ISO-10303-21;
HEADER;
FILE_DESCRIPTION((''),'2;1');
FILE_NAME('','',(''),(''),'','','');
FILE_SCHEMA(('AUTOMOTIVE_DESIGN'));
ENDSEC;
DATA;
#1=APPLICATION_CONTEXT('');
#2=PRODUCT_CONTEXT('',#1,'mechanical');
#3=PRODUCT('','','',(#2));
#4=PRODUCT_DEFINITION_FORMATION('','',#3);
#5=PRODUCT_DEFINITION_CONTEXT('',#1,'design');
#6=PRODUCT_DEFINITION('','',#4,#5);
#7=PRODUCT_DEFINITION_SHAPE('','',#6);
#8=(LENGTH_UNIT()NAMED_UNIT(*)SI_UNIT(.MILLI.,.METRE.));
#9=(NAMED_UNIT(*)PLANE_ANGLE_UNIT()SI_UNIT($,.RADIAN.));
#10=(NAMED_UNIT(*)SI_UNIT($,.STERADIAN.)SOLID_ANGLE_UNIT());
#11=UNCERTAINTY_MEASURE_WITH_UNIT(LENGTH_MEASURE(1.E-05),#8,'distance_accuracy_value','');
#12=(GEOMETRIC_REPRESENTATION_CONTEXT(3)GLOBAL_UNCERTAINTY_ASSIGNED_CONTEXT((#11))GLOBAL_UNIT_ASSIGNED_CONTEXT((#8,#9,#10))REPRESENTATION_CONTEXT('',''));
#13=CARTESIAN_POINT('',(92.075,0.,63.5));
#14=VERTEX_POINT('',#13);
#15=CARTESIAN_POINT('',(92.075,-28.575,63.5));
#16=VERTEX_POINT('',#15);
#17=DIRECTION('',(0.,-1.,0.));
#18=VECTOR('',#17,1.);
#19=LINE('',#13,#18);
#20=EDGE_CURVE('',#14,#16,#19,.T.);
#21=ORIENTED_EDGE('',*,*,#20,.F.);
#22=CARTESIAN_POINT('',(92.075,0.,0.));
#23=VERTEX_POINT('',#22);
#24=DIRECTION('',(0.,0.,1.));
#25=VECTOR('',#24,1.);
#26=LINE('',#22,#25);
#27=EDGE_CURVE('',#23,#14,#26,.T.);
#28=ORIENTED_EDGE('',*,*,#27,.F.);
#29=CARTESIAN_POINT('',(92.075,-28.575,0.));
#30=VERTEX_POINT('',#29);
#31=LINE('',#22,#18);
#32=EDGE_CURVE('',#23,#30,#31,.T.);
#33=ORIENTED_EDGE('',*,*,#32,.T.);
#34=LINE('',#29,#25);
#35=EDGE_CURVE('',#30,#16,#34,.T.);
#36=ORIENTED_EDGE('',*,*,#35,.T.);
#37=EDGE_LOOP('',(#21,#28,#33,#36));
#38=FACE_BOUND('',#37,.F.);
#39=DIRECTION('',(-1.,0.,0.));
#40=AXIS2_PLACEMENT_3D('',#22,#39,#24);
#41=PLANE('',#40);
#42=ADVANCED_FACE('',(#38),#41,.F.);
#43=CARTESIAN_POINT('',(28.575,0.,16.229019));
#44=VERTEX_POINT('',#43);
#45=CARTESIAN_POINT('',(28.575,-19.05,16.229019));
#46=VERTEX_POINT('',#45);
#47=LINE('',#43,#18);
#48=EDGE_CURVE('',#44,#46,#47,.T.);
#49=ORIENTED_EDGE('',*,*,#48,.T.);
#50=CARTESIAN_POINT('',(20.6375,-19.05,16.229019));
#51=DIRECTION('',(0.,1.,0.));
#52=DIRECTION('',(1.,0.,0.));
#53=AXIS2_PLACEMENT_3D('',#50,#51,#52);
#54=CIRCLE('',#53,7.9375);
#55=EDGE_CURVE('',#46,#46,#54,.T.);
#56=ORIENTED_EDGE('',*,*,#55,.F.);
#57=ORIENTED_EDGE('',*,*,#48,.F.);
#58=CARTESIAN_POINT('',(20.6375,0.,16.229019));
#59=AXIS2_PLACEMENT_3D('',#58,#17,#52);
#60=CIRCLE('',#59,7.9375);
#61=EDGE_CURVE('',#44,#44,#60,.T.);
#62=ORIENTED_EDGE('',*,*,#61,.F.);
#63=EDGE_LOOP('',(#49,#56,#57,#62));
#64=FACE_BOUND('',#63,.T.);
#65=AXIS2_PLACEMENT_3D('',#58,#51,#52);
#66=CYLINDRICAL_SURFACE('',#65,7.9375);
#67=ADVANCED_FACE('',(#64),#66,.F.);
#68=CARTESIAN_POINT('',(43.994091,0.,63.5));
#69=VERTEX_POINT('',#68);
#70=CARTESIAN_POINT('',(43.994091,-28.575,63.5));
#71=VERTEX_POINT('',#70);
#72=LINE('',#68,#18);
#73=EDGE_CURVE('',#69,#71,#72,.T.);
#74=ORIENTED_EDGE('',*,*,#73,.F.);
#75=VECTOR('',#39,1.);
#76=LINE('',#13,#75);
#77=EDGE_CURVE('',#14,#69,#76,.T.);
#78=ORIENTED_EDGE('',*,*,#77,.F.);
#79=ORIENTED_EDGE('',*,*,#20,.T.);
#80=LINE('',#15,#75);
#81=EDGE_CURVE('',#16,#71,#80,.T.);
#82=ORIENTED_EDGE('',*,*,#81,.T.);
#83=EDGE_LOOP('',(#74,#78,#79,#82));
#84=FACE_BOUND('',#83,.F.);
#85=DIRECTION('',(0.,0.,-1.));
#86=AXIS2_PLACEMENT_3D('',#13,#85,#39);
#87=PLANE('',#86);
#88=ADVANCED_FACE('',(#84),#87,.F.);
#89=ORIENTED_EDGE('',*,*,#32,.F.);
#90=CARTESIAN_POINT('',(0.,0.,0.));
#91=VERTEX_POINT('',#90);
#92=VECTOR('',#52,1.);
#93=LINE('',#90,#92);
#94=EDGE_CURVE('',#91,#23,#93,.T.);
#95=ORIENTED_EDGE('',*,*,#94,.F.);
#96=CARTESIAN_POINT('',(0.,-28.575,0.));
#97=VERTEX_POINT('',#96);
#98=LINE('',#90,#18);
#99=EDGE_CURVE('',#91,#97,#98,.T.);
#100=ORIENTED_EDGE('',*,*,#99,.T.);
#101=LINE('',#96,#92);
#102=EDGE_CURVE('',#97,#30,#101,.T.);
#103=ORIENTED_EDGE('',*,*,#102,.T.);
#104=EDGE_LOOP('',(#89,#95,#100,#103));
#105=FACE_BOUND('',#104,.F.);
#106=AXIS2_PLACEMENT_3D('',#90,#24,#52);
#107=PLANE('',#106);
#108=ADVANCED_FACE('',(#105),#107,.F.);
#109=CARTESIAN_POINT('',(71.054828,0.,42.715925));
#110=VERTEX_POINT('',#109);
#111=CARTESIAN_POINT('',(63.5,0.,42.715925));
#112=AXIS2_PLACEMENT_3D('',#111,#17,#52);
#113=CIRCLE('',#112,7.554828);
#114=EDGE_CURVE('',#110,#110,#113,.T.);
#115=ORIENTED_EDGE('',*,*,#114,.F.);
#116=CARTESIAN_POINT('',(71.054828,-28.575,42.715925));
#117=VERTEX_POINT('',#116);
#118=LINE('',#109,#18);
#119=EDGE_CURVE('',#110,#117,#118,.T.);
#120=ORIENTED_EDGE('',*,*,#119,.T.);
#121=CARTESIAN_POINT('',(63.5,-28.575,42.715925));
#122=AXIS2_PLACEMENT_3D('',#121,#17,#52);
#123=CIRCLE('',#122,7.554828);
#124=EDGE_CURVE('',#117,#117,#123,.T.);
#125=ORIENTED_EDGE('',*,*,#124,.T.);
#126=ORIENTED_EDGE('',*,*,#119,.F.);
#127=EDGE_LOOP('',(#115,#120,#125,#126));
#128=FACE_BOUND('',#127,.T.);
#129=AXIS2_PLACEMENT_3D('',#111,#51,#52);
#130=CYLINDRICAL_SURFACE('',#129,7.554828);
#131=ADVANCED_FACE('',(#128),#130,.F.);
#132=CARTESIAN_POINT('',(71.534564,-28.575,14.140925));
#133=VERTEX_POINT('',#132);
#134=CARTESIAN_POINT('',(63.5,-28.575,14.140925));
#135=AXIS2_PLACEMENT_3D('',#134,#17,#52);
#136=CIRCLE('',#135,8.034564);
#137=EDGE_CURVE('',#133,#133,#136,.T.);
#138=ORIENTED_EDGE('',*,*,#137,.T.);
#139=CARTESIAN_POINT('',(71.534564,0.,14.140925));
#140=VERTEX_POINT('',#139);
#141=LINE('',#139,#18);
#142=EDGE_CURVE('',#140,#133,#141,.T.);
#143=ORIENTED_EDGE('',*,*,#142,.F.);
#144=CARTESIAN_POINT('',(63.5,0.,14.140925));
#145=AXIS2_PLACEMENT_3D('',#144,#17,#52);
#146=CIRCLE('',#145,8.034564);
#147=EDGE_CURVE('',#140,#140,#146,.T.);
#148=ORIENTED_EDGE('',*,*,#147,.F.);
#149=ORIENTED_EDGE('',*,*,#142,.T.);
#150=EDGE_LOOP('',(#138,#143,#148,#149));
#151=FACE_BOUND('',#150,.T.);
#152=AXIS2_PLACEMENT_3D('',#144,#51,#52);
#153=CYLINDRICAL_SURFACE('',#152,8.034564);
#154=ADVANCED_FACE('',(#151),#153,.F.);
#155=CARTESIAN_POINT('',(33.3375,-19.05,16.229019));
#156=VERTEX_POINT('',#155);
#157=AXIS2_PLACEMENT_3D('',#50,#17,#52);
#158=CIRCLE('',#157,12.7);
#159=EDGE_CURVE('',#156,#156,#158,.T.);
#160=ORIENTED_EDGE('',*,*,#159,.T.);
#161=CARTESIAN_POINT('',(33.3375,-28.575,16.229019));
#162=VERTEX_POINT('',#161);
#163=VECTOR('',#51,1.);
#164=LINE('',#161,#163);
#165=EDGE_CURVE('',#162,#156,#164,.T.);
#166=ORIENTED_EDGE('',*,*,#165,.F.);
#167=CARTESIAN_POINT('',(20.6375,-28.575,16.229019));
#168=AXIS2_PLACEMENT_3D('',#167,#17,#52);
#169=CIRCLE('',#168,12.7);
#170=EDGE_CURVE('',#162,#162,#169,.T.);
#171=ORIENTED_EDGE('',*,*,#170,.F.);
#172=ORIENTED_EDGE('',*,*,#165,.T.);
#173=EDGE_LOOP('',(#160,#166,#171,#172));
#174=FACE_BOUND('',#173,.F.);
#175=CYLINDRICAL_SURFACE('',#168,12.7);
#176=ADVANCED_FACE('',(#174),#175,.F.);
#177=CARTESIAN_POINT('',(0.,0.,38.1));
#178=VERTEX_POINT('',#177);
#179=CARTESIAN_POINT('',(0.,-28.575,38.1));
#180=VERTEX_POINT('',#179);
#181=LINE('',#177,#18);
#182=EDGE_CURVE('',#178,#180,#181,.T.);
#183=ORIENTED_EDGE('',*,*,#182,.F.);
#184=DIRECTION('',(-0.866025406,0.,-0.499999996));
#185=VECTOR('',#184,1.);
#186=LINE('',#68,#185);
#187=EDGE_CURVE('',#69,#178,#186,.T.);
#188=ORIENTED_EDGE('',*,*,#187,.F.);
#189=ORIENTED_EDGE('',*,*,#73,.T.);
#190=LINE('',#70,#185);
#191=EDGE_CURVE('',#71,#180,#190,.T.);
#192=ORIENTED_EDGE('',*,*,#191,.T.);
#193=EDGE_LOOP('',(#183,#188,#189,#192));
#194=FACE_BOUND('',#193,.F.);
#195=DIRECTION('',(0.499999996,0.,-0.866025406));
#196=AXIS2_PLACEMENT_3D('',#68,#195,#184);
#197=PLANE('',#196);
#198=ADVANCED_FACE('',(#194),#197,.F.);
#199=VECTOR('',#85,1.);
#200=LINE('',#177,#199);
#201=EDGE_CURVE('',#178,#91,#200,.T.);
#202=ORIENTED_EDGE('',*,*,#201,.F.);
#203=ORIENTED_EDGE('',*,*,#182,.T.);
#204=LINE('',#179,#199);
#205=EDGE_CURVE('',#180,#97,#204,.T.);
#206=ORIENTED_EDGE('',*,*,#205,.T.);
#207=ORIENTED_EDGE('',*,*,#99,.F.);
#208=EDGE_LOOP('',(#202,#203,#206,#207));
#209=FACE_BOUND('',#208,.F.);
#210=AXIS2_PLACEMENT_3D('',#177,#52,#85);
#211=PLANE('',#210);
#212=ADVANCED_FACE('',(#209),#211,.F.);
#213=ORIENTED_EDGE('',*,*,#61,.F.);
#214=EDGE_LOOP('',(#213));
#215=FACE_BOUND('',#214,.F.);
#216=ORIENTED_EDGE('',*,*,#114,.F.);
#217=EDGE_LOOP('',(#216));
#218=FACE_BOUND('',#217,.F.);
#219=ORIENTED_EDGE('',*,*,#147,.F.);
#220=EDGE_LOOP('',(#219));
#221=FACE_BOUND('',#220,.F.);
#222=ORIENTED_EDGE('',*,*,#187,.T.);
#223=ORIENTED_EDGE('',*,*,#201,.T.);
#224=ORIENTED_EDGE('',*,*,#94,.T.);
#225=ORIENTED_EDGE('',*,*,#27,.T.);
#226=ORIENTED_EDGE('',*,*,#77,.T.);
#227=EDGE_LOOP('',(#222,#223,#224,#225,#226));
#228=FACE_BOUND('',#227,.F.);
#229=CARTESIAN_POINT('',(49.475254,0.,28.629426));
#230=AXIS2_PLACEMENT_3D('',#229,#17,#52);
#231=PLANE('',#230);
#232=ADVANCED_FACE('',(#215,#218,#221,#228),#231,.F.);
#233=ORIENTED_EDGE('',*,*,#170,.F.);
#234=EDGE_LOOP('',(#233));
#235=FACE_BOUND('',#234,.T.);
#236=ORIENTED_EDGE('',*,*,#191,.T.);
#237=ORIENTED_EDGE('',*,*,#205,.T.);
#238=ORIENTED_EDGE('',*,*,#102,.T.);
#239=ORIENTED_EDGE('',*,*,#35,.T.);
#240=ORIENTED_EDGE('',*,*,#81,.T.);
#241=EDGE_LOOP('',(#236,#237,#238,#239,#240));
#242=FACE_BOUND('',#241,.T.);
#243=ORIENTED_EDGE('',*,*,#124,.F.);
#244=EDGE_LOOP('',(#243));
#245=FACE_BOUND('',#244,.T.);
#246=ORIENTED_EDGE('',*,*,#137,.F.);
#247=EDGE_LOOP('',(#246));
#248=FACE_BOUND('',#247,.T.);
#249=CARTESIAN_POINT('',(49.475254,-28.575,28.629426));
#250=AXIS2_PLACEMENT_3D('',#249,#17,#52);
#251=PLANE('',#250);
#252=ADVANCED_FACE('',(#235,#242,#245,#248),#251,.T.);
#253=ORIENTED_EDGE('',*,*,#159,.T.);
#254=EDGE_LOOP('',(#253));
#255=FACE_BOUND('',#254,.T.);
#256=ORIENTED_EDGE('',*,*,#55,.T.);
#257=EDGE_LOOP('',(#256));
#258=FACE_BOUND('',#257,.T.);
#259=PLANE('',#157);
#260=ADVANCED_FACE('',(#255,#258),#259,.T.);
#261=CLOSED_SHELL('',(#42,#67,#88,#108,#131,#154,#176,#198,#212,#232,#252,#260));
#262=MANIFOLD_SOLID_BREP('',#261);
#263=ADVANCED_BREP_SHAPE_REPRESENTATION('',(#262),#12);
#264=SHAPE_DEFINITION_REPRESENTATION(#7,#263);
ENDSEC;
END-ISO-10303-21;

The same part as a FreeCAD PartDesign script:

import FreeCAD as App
import Part
import Sketcher

V = App.Vector
Q = App.Units.Quantity


def add_polygon(sketch, points):
    """Adds a closed chain of lines whose ends are joined by coincident constraints."""
    first, n = sketch.GeometryCount, len(points)
    for a, b in zip(points, points[1:] + points[:1]):
        sketch.addGeometry(Part.LineSegment(App.Vector(*a, 0), App.Vector(*b, 0)), False)
    for i in range(n):
        sketch.addConstraint(Sketcher.Constraint("Coincident", first + i, 2, first + (i + 1) % n, 1))

doc = App.newDocument("Part")
body = doc.addObject("PartDesign::Body", "Body")

sketch1 = body.newObject("Sketcher::SketchObject", "Sketch")
sketch1.AttachmentSupport = (doc.getObject("XZ_Plane"), [""])
sketch1.MapMode = "FlatFace"
add_polygon(sketch1, [(0, 38), (0, 0), (92, 0), (92, 64), (44, 64)])
sketch1.addGeometry(Part.Circle(V(21, 16, 0), V(0, 0, 1), 8), False)
sketch1.addGeometry(Part.Circle(V(64, 14, 0), V(0, 0, 1), 8), False)
sketch1.addGeometry(Part.Circle(V(64, 43, 0), V(0, 0, 1), 8), False)
sketch1.addConstraint([
    Sketcher.Constraint("Vertical", 0),
    Sketcher.Constraint("Horizontal", 1),
    Sketcher.Constraint("Vertical", 2),
    Sketcher.Constraint("Horizontal", 3),
    Sketcher.Constraint("Coincident", 0, 2, -1, 1),
    Sketcher.Constraint("Vertical", 6, 3, 7, 3),
    Sketcher.Constraint("Distance", 4, Q("2 in")),
    Sketcher.Constraint("Diameter", 5, Q("0.625 in")),
    Sketcher.Constraint("DistanceY", 0, 2, 0, 1, Q("1.5 in")),
    Sketcher.Constraint("DistanceY", 2, 1, 2, 2, Q("2.5 in")),
    Sketcher.Constraint("DistanceX", -1, 1, 6, 3, Q("2.5 in")),
    Sketcher.Constraint("DistanceX", 1, 1, 1, 2, Q("3.625 in")),
    Sketcher.Constraint("DistanceX", -1, 1, 5, 3, Q("0.8125 in")),
    Sketcher.Constraint("DistanceY", 6, 3, 7, 3, Q("1.125 in")),
    Sketcher.Constraint("Diameter", 6, 16.069128),
    Sketcher.Constraint("Diameter", 7, 15.109656),
    Sketcher.Constraint("DistanceY", -1, 1, 5, 3, 16.229019),
    Sketcher.Constraint("DistanceY", -1, 1, 6, 3, 14.140925),
])
pad1 = body.newObject("PartDesign::Pad", "Pad")
pad1.Profile = sketch1
pad1.Length = Q("1.125 in")

sketch2 = body.newObject("Sketcher::SketchObject", "Sketch001")
sketch2.AttachmentSupport = (doc.getObject("XZ_Plane"), [""])
sketch2.MapMode = "FlatFace"
sketch2.AttachmentOffset = App.Placement(V(0, 0, 1.125 * 25.4), App.Rotation())
sketch2.addGeometry(Part.Circle(V(21, 16, 0), V(0, 0, 1), 13), False)
sketch2.addConstraint([
    Sketcher.Constraint("Diameter", 0, Q("1 in")),
    Sketcher.Constraint("DistanceX", -1, 1, 0, 3, Q("0.8125 in")),
    Sketcher.Constraint("DistanceY", -1, 1, 0, 3, 16.229019),
])
pocket1 = body.newObject("PartDesign::Pocket", "Pocket")
pocket1.Profile = sketch2
pocket1.Length = Q("0.375 in")

doc.recompute()
